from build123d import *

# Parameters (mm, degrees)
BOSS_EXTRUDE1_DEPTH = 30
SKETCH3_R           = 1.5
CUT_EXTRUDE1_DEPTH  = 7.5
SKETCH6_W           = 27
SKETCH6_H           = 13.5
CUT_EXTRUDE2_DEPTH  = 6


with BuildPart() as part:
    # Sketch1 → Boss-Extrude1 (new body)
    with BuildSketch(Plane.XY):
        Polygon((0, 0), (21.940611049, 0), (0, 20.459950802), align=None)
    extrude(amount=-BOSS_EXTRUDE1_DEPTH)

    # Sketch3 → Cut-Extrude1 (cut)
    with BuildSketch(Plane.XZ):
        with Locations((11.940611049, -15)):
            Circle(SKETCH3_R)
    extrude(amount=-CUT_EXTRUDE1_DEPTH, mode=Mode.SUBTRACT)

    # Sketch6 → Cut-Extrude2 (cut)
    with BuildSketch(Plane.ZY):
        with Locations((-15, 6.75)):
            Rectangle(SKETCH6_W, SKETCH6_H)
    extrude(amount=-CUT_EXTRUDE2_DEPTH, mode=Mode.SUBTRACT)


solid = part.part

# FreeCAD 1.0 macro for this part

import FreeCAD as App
import Part
import Sketcher

V = App.Vector
Q = App.Units.Quantity

doc = App.newDocument("Part")
body = doc.addObject("PartDesign::Body", "Body")

sketch1 = body.newObject("Sketcher::SketchObject", "Sketch")
sketch1.AttachmentSupport = (doc.getObject("XY_Plane"), [""])
sketch1.MapMode = "FlatFace"
sketch1.addGeometry([
    Part.LineSegment(V(0, 0, 0), V(22, 0, 0)),
    Part.LineSegment(V(22, 0, 0), V(0, 20, 0)),
    Part.LineSegment(V(0, 20, 0), V(0, 0, 0)),
], False)
sketch1.addConstraint([
    Sketcher.Constraint("Coincident", 0, 2, 1, 1),
    Sketcher.Constraint("Coincident", 1, 2, 2, 1),
    Sketcher.Constraint("Coincident", 2, 2, 0, 1),
    Sketcher.Constraint("Horizontal", 0),
    Sketcher.Constraint("Vertical", 2),
    Sketcher.Constraint("Coincident", 2, 2, -1, 1),
    Sketcher.Constraint("Angle", 1, Q("137 deg")),
    Sketcher.Constraint("Distance", 1, Q("30 mm")),
])
pad1 = body.newObject("PartDesign::Pad", "Pad")
pad1.Profile = sketch1
pad1.Length = 30
pad1.Reversed = True

sketch2 = body.newObject("Sketcher::SketchObject", "Sketch001")
sketch2.AttachmentSupport = (doc.getObject("XZ_Plane"), [""])
sketch2.MapMode = "FlatFace"
sketch2.addGeometry(Part.Circle(V(11.9, -15, 0), V(0, 0, 1), 1.5), False)
sketch2.addConstraint([
    Sketcher.Constraint("Diameter", 0, Q("3 mm")),
    Sketcher.Constraint("DistanceY", 0, 3, -1, 1, Q("15 mm")),
    Sketcher.Constraint("DistanceX", -1, 1, 0, 3, Q("11.940611 mm")),
])
pocket1 = body.newObject("PartDesign::Pocket", "Pocket")
pocket1.Profile = sketch2
pocket1.Length = 7.5

sketch3 = body.newObject("Sketcher::SketchObject", "Sketch002")
sketch3.AttachmentSupport = (doc.getObject("YZ_Plane"), [""])
sketch3.MapMode = "FlatFace"
sketch3.addGeometry([
    Part.LineSegment(V(14, -28, 0), V(0, -28, 0)),
    Part.LineSegment(V(0, -28, 0), V(0, -2, 0)),
    Part.LineSegment(V(0, -2, 0), V(14, -2, 0)),
    Part.LineSegment(V(14, -2, 0), V(14, -28, 0)),
], False)
sketch3.addConstraint([
    Sketcher.Constraint("Coincident", 0, 2, 1, 1),
    Sketcher.Constraint("Coincident", 1, 2, 2, 1),
    Sketcher.Constraint("Coincident", 2, 2, 3, 1),
    Sketcher.Constraint("Coincident", 3, 2, 0, 1),
    Sketcher.Constraint("Horizontal", 0),
    Sketcher.Constraint("Vertical", 1),
    Sketcher.Constraint("Horizontal", 2),
    Sketcher.Constraint("Vertical", 3),
    Sketcher.Constraint("PointOnObject", 0, 2, -2),
    Sketcher.Constraint("DistanceY", 1, 1, 1, 2, Q("27 mm")),
    Sketcher.Constraint("DistanceX", 0, 2, 0, 1, Q("13.5 mm")),
    Sketcher.Constraint("DistanceY", 0, 2, -1, 1, Q("28.5 mm")),
])
pocket2 = body.newObject("PartDesign::Pocket", "Pocket001")
pocket2.Profile = sketch3
pocket2.Length = 6
pocket2.Reversed = True

doc.recompute()
